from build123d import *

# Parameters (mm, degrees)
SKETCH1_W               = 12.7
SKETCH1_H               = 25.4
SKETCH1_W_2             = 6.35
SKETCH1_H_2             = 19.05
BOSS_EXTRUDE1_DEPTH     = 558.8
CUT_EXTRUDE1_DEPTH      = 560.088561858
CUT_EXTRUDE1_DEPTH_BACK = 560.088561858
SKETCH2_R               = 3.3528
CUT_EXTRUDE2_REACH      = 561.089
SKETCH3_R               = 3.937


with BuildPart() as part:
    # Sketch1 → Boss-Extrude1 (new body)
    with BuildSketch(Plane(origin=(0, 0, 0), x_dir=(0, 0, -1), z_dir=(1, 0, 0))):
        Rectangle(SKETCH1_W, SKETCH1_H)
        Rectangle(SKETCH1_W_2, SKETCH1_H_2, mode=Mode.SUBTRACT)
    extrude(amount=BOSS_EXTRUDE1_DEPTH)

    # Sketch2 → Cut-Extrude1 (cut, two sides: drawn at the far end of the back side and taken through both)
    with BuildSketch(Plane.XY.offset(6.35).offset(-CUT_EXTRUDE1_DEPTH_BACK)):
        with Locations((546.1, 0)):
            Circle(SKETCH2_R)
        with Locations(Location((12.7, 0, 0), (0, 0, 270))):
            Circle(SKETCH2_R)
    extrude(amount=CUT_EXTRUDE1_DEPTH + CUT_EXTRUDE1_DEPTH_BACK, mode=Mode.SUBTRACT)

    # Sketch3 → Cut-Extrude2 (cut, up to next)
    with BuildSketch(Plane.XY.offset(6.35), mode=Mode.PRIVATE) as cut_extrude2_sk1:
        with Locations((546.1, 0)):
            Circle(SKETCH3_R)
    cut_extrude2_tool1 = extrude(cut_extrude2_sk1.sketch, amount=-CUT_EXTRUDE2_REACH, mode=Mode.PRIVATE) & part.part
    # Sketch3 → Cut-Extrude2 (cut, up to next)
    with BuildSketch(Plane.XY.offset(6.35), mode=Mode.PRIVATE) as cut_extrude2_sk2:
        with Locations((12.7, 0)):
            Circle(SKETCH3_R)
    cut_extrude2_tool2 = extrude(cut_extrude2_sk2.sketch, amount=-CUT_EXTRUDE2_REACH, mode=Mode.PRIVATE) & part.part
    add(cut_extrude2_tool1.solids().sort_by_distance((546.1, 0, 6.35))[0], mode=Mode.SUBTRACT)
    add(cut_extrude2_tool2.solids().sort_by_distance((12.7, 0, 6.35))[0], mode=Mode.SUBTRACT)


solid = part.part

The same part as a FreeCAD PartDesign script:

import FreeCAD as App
import Part
import Sketcher

V = App.Vector
Q = App.Units.Quantity

doc = App.newDocument("Part")
body = doc.addObject("PartDesign::Body", "Body")

# Sketch on YZ plane
sketch1 = body.newObject("Sketcher::SketchObject", "Sketch")
sketch1.AttachmentSupport = (doc.getObject("YZ_Plane"), [""])
sketch1.MapMode = "FlatFace"
sketch1.addGeometry([
    Part.LineSegment(V(13, 6, 0), V(-13, 6, 0)),  # 0
    Part.LineSegment(V(-13, 6, 0), V(-13, -6, 0)),  # 1
    Part.LineSegment(V(-13, -6, 0), V(13, -6, 0)),  # 2
    Part.LineSegment(V(13, -6, 0), V(13, 6, 0)),  # 3
    Part.LineSegment(V(-10, -3, 0), V(-10, 3, 0)),  # 4
    Part.LineSegment(V(-10, 3, 0), V(10, 3, 0)),  # 5
    Part.LineSegment(V(10, 3, 0), V(10, -3, 0)),  # 6
    Part.LineSegment(V(10, -3, 0), V(-10, -3, 0)),  # 7
], False)
sketch1.addConstraint([
    Sketcher.Constraint("Coincident", 0, 2, 1, 1),
    Sketcher.Constraint("Coincident", 1, 2, 2, 1),
    Sketcher.Constraint("Coincident", 2, 2, 3, 1),
    Sketcher.Constraint("Coincident", 3, 2, 0, 1),
    Sketcher.Constraint("Coincident", 4, 2, 5, 1),
    Sketcher.Constraint("Coincident", 5, 2, 6, 1),
    Sketcher.Constraint("Coincident", 6, 2, 7, 1),
    Sketcher.Constraint("Coincident", 7, 2, 4, 1),
    Sketcher.Constraint("Horizontal", 0),
    Sketcher.Constraint("Vertical", 1),
    Sketcher.Constraint("Horizontal", 2),
    Sketcher.Constraint("Vertical", 3),
    Sketcher.Constraint("Vertical", 4),
    Sketcher.Constraint("Horizontal", 5),
    Sketcher.Constraint("Vertical", 6),
    Sketcher.Constraint("Horizontal", 7),
    Sketcher.Constraint("Symmetric", 0, 2, 2, 2, -1, 1),
    Sketcher.Constraint("Symmetric", 4, 2, 6, 2, -1, 1),
    Sketcher.Constraint("DistanceX", 0, 2, 0, 1, Q("1 in")),
    Sketcher.Constraint("DistanceY", 1, 2, 1, 1, Q("0.5 in")),
    Sketcher.Constraint("DistanceX", 5, 1, 5, 2, Q("0.75 in")),
    Sketcher.Constraint("DistanceY", 4, 1, 4, 2, Q("0.25 in")),
])
pad1 = body.newObject("PartDesign::Pad", "Pad")
pad1.Profile = sketch1
pad1.Length = Q("22 in")

# Sketch on XY plane
sketch2 = body.newObject("Sketcher::SketchObject", "Sketch001")
sketch2.AttachmentSupport = (doc.getObject("XY_Plane"), [""])
sketch2.MapMode = "FlatFace"
sketch2.AttachmentOffset = App.Placement(V(0, 0, 0.25 * 25.4), App.Rotation())
sketch2.addGeometry([
    Part.Circle(V(546.1, 0, 0), V(0, 0, 1), 3.4),
    Part.Circle(V(12.7, 0, 0), V(0, 0, 1), 3.4),
], False)
sketch2.addConstraint([
    Sketcher.Constraint("Equal", 0, 1),
    Sketcher.Constraint("PointOnObject", 0, 3, -1),
    Sketcher.Constraint("PointOnObject", 1, 3, -1),
    Sketcher.Constraint("Diameter", 0, Q("0.264 in")),
    Sketcher.Constraint("DistanceX", 1, 3, 0, 3, Q("21 in")),
    Sketcher.Constraint("DistanceX", -1, 1, 0, 3, Q("21.5 in")),
])
pocket1 = body.newObject("PartDesign::Pocket", "Pocket")
pocket1.Profile = sketch2
pocket1.Type = "ThroughAll"
pocket1.Midplane = True

# Sketch on XY plane
sketch3 = body.newObject("Sketcher::SketchObject", "Sketch002")
sketch3.AttachmentSupport = (doc.getObject("XY_Plane"), [""])
sketch3.MapMode = "FlatFace"
sketch3.AttachmentOffset = App.Placement(V(0, 0, 0.25 * 25.4), App.Rotation())
sketch3.addGeometry(Part.Circle(V(546.1, 0, 0), V(0, 0, 1), 3.9), False)
sketch3.addConstraint([
    Sketcher.Constraint("PointOnObject", 0, 3, -1),
    Sketcher.Constraint("Diameter", 0, Q("0.31 in")),
    Sketcher.Constraint("DistanceX", -1, 1, 0, 3, Q("21.5 in")),
])
pocket2 = body.newObject("PartDesign::Pocket", "Pocket001")
pocket2.Profile = sketch3
pocket2.Length = Q("0.125 in")

# Sketch on XY plane
sketch4 = body.newObject("Sketcher::SketchObject", "Sketch003")
sketch4.AttachmentSupport = (doc.getObject("XY_Plane"), [""])
sketch4.MapMode = "FlatFace"
sketch4.AttachmentOffset = App.Placement(V(0, 0, 0.25 * 25.4), App.Rotation())
sketch4.addGeometry(Part.Circle(V(12.7, 0, 0), V(0, 0, 1), 3.9), False)
sketch4.addConstraint([
    Sketcher.Constraint("PointOnObject", 0, 3, -1),
    Sketcher.Constraint("Diameter", 0, Q("0.31 in")),
    Sketcher.Constraint("DistanceX", -1, 1, 0, 3, Q("0.5 in")),
])
pocket3 = body.newObject("PartDesign::Pocket", "Pocket002")
pocket3.Profile = sketch4
pocket3.Length = Q("0.125 in")

doc.recompute()
